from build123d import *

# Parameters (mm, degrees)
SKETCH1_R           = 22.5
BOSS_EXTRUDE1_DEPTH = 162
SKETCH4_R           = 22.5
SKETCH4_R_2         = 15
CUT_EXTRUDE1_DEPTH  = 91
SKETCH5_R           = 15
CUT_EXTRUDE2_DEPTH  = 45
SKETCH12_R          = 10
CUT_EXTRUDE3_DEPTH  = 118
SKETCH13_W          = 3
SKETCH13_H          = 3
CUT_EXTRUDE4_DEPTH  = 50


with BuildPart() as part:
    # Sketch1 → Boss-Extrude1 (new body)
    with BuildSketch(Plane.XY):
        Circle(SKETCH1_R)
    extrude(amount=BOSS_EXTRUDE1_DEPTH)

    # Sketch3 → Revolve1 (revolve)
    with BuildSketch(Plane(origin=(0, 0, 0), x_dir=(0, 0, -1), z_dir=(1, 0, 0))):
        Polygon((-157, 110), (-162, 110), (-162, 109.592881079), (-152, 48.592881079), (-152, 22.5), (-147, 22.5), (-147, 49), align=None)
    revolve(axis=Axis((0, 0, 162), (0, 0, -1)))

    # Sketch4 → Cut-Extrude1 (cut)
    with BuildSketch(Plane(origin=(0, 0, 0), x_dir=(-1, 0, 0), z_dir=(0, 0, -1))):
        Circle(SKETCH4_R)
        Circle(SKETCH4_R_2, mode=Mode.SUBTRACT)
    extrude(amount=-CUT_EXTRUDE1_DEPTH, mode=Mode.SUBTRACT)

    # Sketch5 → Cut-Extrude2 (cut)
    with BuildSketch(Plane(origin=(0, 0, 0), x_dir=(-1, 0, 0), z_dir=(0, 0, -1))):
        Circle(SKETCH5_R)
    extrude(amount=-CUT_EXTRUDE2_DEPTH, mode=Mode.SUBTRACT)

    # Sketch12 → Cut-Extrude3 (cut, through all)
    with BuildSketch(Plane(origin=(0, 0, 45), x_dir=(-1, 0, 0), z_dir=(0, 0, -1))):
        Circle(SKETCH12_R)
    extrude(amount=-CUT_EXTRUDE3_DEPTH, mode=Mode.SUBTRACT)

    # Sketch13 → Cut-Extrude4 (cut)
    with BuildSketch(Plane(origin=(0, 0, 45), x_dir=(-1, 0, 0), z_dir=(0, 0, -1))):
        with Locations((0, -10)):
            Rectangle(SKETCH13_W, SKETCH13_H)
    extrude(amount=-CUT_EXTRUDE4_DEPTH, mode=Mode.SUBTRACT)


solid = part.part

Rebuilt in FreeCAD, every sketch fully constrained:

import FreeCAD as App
import Part
import Sketcher


def add_polygon(sketch, points):
    """Adds a closed chain of lines whose ends are joined by coincident constraints."""
    first, n = sketch.GeometryCount, len(points)
    for a, b in zip(points, points[1:] + points[:1]):
        sketch.addGeometry(Part.LineSegment(App.Vector(*a, 0), App.Vector(*b, 0)), False)
    for i in range(n):
        sketch.addConstraint(Sketcher.Constraint("Coincident", first + i, 2, first + (i + 1) % n, 1))

doc = App.newDocument("Part")
body = doc.addObject("PartDesign::Body", "Body")

sketch1 = doc.addObject("Sketcher::SketchObject", "Sketch")
body.addObject(sketch1)
sketch1.AttachmentSupport = (doc.XY_Plane, [""])
sketch1.MapMode = "FlatFace"
sketch1.addGeometry(Part.Circle(App.Vector(0, 0, 0), App.Vector(0, 0, 1), 22), False)
sketch1.addConstraint([
    Sketcher.Constraint("Coincident", 0, 3, -1, 1),
    Sketcher.Constraint("Diameter", 0, 45.0),
])
pad1 = doc.addObject("PartDesign::Pad", "Pad")
body.addObject(pad1)
pad1.Profile = sketch1
pad1.Length = 162

sketch2 = doc.addObject("Sketcher::SketchObject", "Sketch001")
body.addObject(sketch2)
sketch2.AttachmentSupport = (doc.YZ_Plane, [""])
sketch2.MapMode = "FlatFace"
add_polygon(sketch2, [(110, 157), (110, 162), (109.59, 162), (48.59, 152), (22.5, 152), (22.5, 147), (49, 147)])
sketch2.addConstraint([
    Sketcher.Constraint("Vertical", 0),
    Sketcher.Constraint("Horizontal", 1),
    Sketcher.Constraint("Horizontal", 3),
    Sketcher.Constraint("Vertical", 4),
    Sketcher.Constraint("Horizontal", 5),
    Sketcher.Constraint("Parallel", 2, 6),
    Sketcher.Constraint("Equal", 0, 4),
    Sketcher.Constraint("DistanceY", 0, 1, 0, 2, 5.0),
    Sketcher.Constraint("DistanceX", 5, 1, 5, 2, 26.5),
    Sketcher.Constraint("DistanceX", -1, 1, 0, 2, 110.0),
    Sketcher.Constraint("DistanceY", -1, 1, 0, 2, 162.0),
    Sketcher.Constraint("DistanceY", -1, 1, 2, 2, 152.0),
    Sketcher.Constraint("DistanceX", -1, 1, 5, 2, 49.0),
    Sketcher.Constraint("DistanceX", 1, 2, 1, 1, 0.407119),
])
revolution = doc.addObject("PartDesign::Revolution", "Revolution")
body.addObject(revolution)
revolution.Profile = sketch2
revolution.ReferenceAxis = (sketch2, ["V_Axis"])
revolution.Angle = 360

sketch3 = doc.addObject("Sketcher::SketchObject", "Sketch002")
body.addObject(sketch3)
sketch3.AttachmentSupport = (doc.XY_Plane, [""])
sketch3.MapMode = "FlatFace"
sketch3.addGeometry([
    Part.Circle(App.Vector(0, 0, 0), App.Vector(0, 0, 1), 22),
    Part.Circle(App.Vector(0, 0, 0), App.Vector(0, 0, 1), 15),
], False)
sketch3.addConstraint([
    Sketcher.Constraint("Coincident", 0, 3, -1, 1),
    Sketcher.Constraint("Coincident", 1, 3, -1, 1),
    Sketcher.Constraint("Diameter", 0, 45.0),
    Sketcher.Constraint("Diameter", 1, 30.0),
])
pocket1 = doc.addObject("PartDesign::Pocket", "Pocket")
body.addObject(pocket1)
pocket1.Profile = sketch3
pocket1.Length = 91
pocket1.Reversed = True

sketch4 = doc.addObject("Sketcher::SketchObject", "Sketch003")
body.addObject(sketch4)
sketch4.AttachmentSupport = (doc.XY_Plane, [""])
sketch4.MapMode = "FlatFace"
sketch4.addGeometry(Part.Circle(App.Vector(0, 0, 0), App.Vector(0, 0, 1), 15), False)
sketch4.addConstraint([
    Sketcher.Constraint("Coincident", 0, 3, -1, 1),
    Sketcher.Constraint("Diameter", 0, 30.0),
])
pocket2 = doc.addObject("PartDesign::Pocket", "Pocket001")
body.addObject(pocket2)
pocket2.Profile = sketch4
pocket2.Length = 45
pocket2.Reversed = True

sketch5 = doc.addObject("Sketcher::SketchObject", "Sketch004")
body.addObject(sketch5)
sketch5.AttachmentSupport = (doc.XY_Plane, [""])
sketch5.MapMode = "FlatFace"
sketch5.AttachmentOffset = App.Placement(App.Vector(0, 0, 45), App.Rotation())
sketch5.addGeometry(Part.Circle(App.Vector(0, 0, 0), App.Vector(0, 0, 1), 10), False)
sketch5.addConstraint([
    Sketcher.Constraint("Coincident", 0, 3, -1, 1),
    Sketcher.Constraint("Diameter", 0, 20.0),
])
pocket3 = doc.addObject("PartDesign::Pocket", "Pocket002")
body.addObject(pocket3)
pocket3.Profile = sketch5
pocket3.Type = "ThroughAll"
pocket3.Reversed = True

sketch6 = doc.addObject("Sketcher::SketchObject", "Sketch005")
body.addObject(sketch6)
sketch6.AttachmentSupport = (doc.XY_Plane, [""])
sketch6.MapMode = "FlatFace"
sketch6.AttachmentOffset = App.Placement(App.Vector(0, 0, 45), App.Rotation())
add_polygon(sketch6, [(1.5, -8.5), (1.5, -11.5), (-1.5, -11.5), (-1.5, -8.5)])
sketch6.addConstraint([
    Sketcher.Constraint("Vertical", 0),
    Sketcher.Constraint("Horizontal", 1),
    Sketcher.Constraint("Vertical", 2),
    Sketcher.Constraint("Horizontal", 3),
    Sketcher.Constraint("Equal", 3, 0),
    Sketcher.Constraint("DistanceX", 1, 2, 1, 1, 3.0),
    Sketcher.Constraint("DistanceX", -1, 1, 0, 2, 1.5),
    Sketcher.Constraint("DistanceY", 0, 2, -1, 1, 11.5),
])
pocket4 = doc.addObject("PartDesign::Pocket", "Pocket003")
body.addObject(pocket4)
pocket4.Profile = sketch6
pocket4.Length = 50
pocket4.Reversed = True

doc.recompute()
